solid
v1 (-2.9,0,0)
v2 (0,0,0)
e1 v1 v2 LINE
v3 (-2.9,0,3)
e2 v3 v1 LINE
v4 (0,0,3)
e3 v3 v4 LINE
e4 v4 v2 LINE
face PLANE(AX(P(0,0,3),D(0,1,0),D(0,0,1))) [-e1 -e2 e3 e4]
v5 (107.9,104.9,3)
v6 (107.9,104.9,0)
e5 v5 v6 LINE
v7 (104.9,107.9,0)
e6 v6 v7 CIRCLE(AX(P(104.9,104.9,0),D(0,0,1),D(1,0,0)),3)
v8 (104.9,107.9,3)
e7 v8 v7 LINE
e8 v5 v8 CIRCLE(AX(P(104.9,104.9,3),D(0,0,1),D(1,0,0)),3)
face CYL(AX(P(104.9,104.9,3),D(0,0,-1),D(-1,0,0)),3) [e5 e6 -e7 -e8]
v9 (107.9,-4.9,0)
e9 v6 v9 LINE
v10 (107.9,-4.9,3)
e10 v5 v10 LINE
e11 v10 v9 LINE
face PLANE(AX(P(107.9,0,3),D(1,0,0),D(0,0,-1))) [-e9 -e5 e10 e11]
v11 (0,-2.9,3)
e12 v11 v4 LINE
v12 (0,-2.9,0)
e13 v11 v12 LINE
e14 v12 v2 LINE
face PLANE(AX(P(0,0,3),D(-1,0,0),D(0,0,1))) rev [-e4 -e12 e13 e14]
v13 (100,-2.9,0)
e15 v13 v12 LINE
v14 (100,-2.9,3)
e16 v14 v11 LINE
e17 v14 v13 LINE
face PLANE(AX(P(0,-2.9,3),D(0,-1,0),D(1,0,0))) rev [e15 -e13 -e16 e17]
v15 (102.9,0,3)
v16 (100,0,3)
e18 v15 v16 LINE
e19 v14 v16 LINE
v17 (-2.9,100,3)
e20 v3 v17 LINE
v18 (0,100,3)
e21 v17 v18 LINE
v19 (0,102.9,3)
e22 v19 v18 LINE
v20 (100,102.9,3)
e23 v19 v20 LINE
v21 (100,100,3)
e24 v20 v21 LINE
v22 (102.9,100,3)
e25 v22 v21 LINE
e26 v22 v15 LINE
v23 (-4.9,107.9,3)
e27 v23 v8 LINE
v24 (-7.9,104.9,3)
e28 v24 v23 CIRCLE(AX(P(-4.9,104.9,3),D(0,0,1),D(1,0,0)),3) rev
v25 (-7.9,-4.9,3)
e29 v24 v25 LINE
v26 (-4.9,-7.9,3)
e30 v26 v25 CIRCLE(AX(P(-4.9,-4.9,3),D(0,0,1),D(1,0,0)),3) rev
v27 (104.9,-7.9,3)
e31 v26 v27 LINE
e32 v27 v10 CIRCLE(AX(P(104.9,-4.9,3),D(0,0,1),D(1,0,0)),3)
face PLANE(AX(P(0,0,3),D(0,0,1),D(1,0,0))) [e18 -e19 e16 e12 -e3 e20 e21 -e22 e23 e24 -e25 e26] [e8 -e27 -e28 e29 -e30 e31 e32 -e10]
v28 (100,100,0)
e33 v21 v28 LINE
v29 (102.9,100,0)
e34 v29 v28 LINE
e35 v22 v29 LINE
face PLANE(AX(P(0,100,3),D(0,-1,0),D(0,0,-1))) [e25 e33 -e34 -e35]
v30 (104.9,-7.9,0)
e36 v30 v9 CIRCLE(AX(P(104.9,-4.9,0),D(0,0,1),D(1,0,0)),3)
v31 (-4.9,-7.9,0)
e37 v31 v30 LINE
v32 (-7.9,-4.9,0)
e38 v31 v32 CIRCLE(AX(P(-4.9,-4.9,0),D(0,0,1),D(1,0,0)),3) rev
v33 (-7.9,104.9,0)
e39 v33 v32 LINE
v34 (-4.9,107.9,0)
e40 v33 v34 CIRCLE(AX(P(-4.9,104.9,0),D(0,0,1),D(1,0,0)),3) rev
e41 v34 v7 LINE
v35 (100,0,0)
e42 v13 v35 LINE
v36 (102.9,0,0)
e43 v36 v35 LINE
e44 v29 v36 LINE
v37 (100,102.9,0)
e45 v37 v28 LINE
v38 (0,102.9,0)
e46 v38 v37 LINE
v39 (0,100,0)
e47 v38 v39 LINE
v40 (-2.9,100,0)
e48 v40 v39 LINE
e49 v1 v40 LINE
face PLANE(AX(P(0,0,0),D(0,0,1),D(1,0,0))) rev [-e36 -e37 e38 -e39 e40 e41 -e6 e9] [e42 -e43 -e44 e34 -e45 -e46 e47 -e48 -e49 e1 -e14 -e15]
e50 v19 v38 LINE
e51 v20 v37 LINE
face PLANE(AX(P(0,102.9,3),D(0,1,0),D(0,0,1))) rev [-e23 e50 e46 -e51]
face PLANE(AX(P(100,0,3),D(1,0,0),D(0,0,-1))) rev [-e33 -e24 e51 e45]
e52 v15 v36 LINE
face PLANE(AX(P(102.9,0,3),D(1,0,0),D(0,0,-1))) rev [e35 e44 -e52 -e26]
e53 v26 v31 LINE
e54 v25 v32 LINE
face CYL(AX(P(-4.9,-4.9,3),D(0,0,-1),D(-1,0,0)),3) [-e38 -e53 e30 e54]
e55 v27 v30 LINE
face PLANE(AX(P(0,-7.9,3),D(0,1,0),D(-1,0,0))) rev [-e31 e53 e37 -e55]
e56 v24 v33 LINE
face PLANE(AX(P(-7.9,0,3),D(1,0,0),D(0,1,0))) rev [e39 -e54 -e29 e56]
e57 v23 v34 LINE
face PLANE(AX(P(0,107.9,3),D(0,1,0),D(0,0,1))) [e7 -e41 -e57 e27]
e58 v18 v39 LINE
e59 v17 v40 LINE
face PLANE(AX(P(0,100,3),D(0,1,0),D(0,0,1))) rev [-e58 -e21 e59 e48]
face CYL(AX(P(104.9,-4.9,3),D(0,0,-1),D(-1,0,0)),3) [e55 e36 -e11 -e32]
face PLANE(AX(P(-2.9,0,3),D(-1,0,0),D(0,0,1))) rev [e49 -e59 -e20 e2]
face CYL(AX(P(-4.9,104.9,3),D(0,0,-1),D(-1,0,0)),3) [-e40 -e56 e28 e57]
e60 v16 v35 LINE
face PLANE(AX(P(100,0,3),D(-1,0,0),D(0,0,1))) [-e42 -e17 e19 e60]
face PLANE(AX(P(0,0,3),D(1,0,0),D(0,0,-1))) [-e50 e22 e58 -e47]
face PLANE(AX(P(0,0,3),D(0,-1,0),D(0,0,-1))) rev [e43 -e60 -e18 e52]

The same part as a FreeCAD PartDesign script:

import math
import FreeCAD as App
import Part
import Sketcher

doc = App.newDocument("Part")
body = doc.addObject("PartDesign::Body", "Body")

# Sketch on XY plane
sketch1 = body.newObject("Sketcher::SketchObject", "Sketch")
sketch1.AttachmentSupport = (doc.getObject("XY_Plane"), [""])
sketch1.MapMode = "FlatFace"
sketch1.addGeometry([
    Part.LineSegment(App.Vector(104.9, 107.9, 0), App.Vector(-4.9, 107.9, 0)),  # 0
    Part.ArcOfCircle(Part.Circle(App.Vector(-4.9, 104.9, 0), App.Vector(0, 0, 1), 3), math.radians(90), math.radians(180)),  # 1
    Part.LineSegment(App.Vector(-7.9, 104.9, 0), App.Vector(-7.9, -4.9, 0)),  # 2
    Part.ArcOfCircle(Part.Circle(App.Vector(-4.9, -4.9, 0), App.Vector(0, 0, 1), 3), math.radians(180), math.radians(270)),  # 3
    Part.LineSegment(App.Vector(-4.9, -7.9, 0), App.Vector(104.9, -7.9, 0)),  # 4
    Part.ArcOfCircle(Part.Circle(App.Vector(104.9, -4.9, 0), App.Vector(0, 0, 1), 3), math.radians(-90), math.radians(0)),  # 5
    Part.LineSegment(App.Vector(107.9, -4.9, 0), App.Vector(107.9, 104.9, 0)),  # 6
    Part.ArcOfCircle(Part.Circle(App.Vector(104.9, 104.9, 0), App.Vector(0, 0, 1), 3), math.radians(0), math.radians(90)),  # 7
    Part.LineSegment(App.Vector(100, -2.9, 0), App.Vector(0, -2.9, 0)),  # 8
    Part.LineSegment(App.Vector(0, -2.9, 0), App.Vector(0, 0, 0)),  # 9
    Part.LineSegment(App.Vector(0, 0, 0), App.Vector(-2.9, 0, 0)),  # 10
    Part.LineSegment(App.Vector(-2.9, 0, 0), App.Vector(-2.9, 100, 0)),  # 11
    Part.LineSegment(App.Vector(-2.9, 100, 0), App.Vector(0, 100, 0)),  # 12
    Part.LineSegment(App.Vector(0, 100, 0), App.Vector(0, 102.9, 0)),  # 13
    Part.LineSegment(App.Vector(0, 102.9, 0), App.Vector(100, 102.9, 0)),  # 14
    Part.LineSegment(App.Vector(100, 102.9, 0), App.Vector(100, 100, 0)),  # 15
    Part.LineSegment(App.Vector(100, 100, 0), App.Vector(102.9, 100, 0)),  # 16
    Part.LineSegment(App.Vector(102.9, 100, 0), App.Vector(102.9, 0, 0)),  # 17
    Part.LineSegment(App.Vector(102.9, 0, 0), App.Vector(100, 0, 0)),  # 18
    Part.LineSegment(App.Vector(100, 0, 0), App.Vector(100, -2.9, 0)),  # 19
], False)
sketch1.addConstraint([
    Sketcher.Constraint("Tangent", 0, 2, 1, 1),
    Sketcher.Constraint("Tangent", 1, 2, 2, 1),
    Sketcher.Constraint("Tangent", 2, 2, 3, 1),
    Sketcher.Constraint("Tangent", 3, 2, 4, 1),
    Sketcher.Constraint("Tangent", 4, 2, 5, 1),
    Sketcher.Constraint("Tangent", 5, 2, 6, 1),
    Sketcher.Constraint("Tangent", 6, 2, 7, 1),
    Sketcher.Constraint("Tangent", 7, 2, 0, 1),
    Sketcher.Constraint("Coincident", 8, 2, 9, 1),
    Sketcher.Constraint("Coincident", 9, 2, 10, 1),
    Sketcher.Constraint("Coincident", 10, 2, 11, 1),
    Sketcher.Constraint("Coincident", 11, 2, 12, 1),
    Sketcher.Constraint("Coincident", 12, 2, 13, 1),
    Sketcher.Constraint("Coincident", 13, 2, 14, 1),
    Sketcher.Constraint("Coincident", 14, 2, 15, 1),
    Sketcher.Constraint("Coincident", 15, 2, 16, 1),
    Sketcher.Constraint("Coincident", 16, 2, 17, 1),
    Sketcher.Constraint("Coincident", 17, 2, 18, 1),
    Sketcher.Constraint("Coincident", 18, 2, 19, 1),
    Sketcher.Constraint("Coincident", 19, 2, 8, 1),
    Sketcher.Constraint("Horizontal", 0),
    Sketcher.Constraint("Vertical", 2),
    Sketcher.Constraint("Horizontal", 4),
    Sketcher.Constraint("Vertical", 6),
    Sketcher.Constraint("Horizontal", 8),
    Sketcher.Constraint("Vertical", 9),
    Sketcher.Constraint("Horizontal", 10),
    Sketcher.Constraint("Vertical", 11),
    Sketcher.Constraint("Horizontal", 12),
    Sketcher.Constraint("Vertical", 13),
    Sketcher.Constraint("Horizontal", 14),
    Sketcher.Constraint("Vertical", 15),
    Sketcher.Constraint("Horizontal", 16),
    Sketcher.Constraint("Vertical", 17),
    Sketcher.Constraint("Horizontal", 18),
    Sketcher.Constraint("Vertical", 19),
    Sketcher.Constraint("Coincident", 9, 2, -1, 1),
    Sketcher.Constraint("Equal", 1, 3),
    Sketcher.Constraint("Equal", 3, 5),
    Sketcher.Constraint("Equal", 5, 7),
    Sketcher.Constraint("PointOnObject", 12, 2, -2),
    Sketcher.Constraint("PointOnObject", 17, 2, -1),
    Sketcher.Constraint("Horizontal", 12, 2, 15, 2),
    Sketcher.Constraint("Vertical", 15, 2, 18, 2),
    Sketcher.Constraint("Equal", 12, 16),
    Sketcher.Constraint("Equal", 4, 2),
    Sketcher.Constraint("Equal", 18, 9),
    Sketcher.Constraint("Equal", 14, 11),
    Sketcher.Constraint("Equal", 9, 13),
    Sketcher.Constraint("Radius", 1, 3.0),
    Sketcher.Constraint("DistanceX", 8, 2, 8, 1, 100.0),
    Sketcher.Constraint("DistanceX", 0, 2, 0, 1, 109.8),
    Sketcher.Constraint("DistanceX", 10, 2, 10, 1, 2.9),
    Sketcher.Constraint("DistanceY", 3, 3, 8, 2, 2.0),
    Sketcher.Constraint("DistanceX", 3, 3, 10, 2, 2.0),
])
pad1 = body.newObject("PartDesign::Pad", "Pad")
pad1.Profile = sketch1
pad1.Length = 3

doc.recompute()
